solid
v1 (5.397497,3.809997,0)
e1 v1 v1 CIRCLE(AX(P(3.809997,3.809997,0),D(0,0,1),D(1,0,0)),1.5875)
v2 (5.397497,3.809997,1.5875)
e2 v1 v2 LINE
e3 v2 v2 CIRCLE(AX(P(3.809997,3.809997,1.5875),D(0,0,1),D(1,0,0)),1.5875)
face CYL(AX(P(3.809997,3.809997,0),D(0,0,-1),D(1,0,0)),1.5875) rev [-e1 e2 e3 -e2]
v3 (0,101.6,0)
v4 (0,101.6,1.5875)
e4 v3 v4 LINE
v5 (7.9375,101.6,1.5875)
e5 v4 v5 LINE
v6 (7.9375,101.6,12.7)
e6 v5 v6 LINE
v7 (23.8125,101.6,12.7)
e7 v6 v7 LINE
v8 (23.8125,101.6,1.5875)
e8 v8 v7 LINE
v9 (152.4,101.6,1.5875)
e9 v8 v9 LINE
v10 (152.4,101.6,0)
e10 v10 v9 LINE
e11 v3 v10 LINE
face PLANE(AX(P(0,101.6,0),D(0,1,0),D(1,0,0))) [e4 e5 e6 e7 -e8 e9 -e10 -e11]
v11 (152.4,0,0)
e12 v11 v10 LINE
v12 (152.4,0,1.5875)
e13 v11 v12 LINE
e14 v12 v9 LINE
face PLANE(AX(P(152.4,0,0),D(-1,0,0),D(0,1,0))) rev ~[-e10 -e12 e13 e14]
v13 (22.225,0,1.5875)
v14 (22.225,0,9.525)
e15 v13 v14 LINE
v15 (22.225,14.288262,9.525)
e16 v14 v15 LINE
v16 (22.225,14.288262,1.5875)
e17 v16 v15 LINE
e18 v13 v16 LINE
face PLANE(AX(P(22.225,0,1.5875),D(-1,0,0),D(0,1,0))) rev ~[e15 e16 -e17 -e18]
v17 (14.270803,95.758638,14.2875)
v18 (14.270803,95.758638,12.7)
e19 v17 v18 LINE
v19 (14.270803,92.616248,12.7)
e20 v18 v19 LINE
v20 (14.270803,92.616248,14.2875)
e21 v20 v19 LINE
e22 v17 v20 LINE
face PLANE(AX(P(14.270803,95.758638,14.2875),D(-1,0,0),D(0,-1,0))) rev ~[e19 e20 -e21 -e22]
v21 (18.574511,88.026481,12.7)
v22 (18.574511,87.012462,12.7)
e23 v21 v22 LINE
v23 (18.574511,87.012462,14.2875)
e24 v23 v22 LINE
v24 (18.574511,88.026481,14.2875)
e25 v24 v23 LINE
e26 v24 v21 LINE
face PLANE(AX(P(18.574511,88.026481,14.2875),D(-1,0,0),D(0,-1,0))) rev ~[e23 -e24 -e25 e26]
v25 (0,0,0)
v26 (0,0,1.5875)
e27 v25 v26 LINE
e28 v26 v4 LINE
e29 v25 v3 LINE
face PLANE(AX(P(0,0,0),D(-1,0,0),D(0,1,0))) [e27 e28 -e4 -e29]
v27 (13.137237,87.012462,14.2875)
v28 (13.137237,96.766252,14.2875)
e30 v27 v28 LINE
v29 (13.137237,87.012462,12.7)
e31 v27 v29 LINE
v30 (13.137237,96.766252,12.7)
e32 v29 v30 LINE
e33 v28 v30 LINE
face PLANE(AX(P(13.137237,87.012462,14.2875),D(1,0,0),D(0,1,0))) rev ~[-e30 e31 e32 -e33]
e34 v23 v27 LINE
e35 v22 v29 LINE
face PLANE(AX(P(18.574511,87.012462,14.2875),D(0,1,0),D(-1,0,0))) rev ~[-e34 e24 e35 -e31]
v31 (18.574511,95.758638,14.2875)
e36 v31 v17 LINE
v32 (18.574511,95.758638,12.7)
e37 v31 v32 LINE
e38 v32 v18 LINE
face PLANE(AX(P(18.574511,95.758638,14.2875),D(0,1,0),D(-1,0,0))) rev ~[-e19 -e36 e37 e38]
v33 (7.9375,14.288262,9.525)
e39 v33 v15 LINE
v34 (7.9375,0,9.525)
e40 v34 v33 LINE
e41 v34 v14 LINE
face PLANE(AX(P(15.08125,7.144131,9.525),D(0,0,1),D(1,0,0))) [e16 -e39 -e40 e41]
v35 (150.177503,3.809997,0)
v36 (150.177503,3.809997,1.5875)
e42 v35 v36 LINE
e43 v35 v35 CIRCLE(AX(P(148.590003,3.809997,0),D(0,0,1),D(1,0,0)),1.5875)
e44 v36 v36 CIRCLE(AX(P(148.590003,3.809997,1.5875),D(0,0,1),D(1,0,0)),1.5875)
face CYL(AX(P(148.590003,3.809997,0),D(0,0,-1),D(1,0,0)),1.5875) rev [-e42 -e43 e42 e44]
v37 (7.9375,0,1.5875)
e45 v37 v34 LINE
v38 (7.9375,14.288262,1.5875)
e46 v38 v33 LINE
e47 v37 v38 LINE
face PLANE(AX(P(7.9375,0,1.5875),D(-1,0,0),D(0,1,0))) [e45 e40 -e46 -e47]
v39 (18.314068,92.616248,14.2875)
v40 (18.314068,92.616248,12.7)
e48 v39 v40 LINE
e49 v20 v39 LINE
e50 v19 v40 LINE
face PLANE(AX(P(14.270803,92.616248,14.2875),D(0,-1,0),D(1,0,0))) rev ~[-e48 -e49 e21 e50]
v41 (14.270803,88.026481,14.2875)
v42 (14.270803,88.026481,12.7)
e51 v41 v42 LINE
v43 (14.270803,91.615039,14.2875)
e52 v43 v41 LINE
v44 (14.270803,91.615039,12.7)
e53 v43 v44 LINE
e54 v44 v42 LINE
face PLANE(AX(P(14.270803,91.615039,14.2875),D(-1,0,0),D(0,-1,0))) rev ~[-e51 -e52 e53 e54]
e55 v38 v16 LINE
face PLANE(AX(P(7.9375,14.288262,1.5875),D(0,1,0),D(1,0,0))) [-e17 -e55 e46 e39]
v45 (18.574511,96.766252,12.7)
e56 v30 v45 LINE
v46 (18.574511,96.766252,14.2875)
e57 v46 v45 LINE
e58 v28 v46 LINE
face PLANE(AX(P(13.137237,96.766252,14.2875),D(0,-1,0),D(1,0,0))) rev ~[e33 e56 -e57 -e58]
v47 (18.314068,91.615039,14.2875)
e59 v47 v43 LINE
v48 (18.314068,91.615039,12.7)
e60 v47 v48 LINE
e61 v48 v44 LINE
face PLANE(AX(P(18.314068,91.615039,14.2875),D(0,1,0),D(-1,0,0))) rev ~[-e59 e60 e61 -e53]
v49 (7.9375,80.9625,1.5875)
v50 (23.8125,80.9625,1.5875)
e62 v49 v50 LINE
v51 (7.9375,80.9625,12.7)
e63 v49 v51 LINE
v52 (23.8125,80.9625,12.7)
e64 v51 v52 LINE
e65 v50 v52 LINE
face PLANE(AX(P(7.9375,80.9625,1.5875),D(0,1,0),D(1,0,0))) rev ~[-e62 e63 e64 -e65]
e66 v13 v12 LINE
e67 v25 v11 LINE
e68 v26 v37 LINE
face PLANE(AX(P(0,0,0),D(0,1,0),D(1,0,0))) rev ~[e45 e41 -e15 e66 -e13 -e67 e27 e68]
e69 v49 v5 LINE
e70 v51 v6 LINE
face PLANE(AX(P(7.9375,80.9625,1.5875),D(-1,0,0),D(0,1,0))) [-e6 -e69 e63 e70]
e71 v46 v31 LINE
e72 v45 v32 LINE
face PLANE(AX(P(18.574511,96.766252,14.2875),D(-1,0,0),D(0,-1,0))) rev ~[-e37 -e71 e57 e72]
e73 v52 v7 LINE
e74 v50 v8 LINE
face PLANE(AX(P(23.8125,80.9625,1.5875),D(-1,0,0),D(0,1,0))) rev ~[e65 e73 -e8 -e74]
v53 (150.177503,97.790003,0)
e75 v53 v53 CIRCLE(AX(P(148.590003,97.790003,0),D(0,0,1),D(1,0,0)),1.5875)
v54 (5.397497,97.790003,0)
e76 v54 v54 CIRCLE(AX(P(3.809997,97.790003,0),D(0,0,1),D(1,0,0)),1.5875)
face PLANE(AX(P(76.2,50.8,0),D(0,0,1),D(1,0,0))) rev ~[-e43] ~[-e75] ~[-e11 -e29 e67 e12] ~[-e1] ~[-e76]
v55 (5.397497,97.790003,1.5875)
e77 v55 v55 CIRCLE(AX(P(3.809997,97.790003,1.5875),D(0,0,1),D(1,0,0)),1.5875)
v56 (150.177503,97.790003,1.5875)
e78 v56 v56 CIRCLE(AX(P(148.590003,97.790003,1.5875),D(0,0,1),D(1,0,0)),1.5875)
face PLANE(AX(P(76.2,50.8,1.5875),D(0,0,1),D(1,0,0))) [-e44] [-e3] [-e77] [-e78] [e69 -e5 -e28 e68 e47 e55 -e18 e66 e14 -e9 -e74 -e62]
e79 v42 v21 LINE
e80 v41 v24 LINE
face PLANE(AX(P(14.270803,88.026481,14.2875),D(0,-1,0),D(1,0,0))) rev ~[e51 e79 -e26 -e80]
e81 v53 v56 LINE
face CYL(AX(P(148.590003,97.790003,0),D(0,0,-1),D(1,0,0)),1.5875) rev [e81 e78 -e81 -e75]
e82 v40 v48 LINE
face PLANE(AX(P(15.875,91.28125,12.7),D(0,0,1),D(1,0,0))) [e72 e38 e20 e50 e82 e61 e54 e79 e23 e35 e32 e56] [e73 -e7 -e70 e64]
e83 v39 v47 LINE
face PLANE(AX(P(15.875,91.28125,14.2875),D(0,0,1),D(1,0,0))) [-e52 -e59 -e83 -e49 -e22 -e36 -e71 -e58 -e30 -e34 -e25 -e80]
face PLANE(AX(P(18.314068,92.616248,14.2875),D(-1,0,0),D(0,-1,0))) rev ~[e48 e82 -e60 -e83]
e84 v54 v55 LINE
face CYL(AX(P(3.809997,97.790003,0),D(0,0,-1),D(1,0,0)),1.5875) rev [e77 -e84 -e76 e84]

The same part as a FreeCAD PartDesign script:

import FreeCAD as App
import Part
import Sketcher
from FreeCAD import Vector
Q = App.Units.Quantity

doc = App.newDocument("Part")
body = doc.addObject("PartDesign::Body", "Body")

sketch1 = doc.addObject("Sketcher::SketchObject", "Sketch")
body.addObject(sketch1)
sketch1.AttachmentSupport = (doc.XY_Plane, [""])
sketch1.MapMode = "FlatFace"
sketch1.addGeometry([
    Part.LineSegment(Vector(0, 101.6, 0), Vector(0, 0, 0)),
    Part.LineSegment(Vector(0, 0, 0), Vector(152.4, 0, 0)),
    Part.LineSegment(Vector(152.4, 0, 0), Vector(152.4, 101.6, 0)),
    Part.LineSegment(Vector(152.4, 101.6, 0), Vector(0, 101.6, 0)),
    Part.Circle(Vector(3.8, 3.8, 0), Vector(0, 0, 1), 1.6),
    Part.Circle(Vector(148.6, 3.8, 0), Vector(0, 0, 1), 1.6),
    Part.Circle(Vector(3.8, 97.8, 0), Vector(0, 0, 1), 1.6),
    Part.Circle(Vector(148.6, 97.8, 0), Vector(0, 0, 1), 1.6),
], False)
sketch1.addConstraint([
    Sketcher.Constraint("Coincident", 0, 2, 1, 1),
    Sketcher.Constraint("Coincident", 1, 2, 2, 1),
    Sketcher.Constraint("Coincident", 2, 2, 3, 1),
    Sketcher.Constraint("Coincident", 3, 2, 0, 1),
    Sketcher.Constraint("Vertical", 0),
    Sketcher.Constraint("Horizontal", 1),
    Sketcher.Constraint("Vertical", 2),
    Sketcher.Constraint("Horizontal", 3),
    Sketcher.Constraint("Coincident", 0, 2, -1, 1),
    Sketcher.Constraint("Equal", 4, 5),
    Sketcher.Constraint("Equal", 5, 6),
    Sketcher.Constraint("Equal", 6, 7),
    Sketcher.Constraint("Horizontal", 4, 3, 5, 3),
    Sketcher.Constraint("Horizontal", 6, 3, 7, 3),
    Sketcher.Constraint("Vertical", 4, 3, 6, 3),
    Sketcher.Constraint("Vertical", 5, 3, 7, 3),
    Sketcher.Constraint("DistanceX", 1, 1, 1, 2, Q("6 in")),
    Sketcher.Constraint("DistanceY", 0, 2, 0, 1, Q("4 in")),
    Sketcher.Constraint("Diameter", 4, Q("0.125 in")),
    Sketcher.Constraint("DistanceX", -1, 1, 4, 3, Q("0.1499999 in")),
    Sketcher.Constraint("DistanceY", -1, 1, 4, 3, Q("0.1499999 in")),
    Sketcher.Constraint("DistanceX", -1, 1, 5, 3, Q("5.8500001 in")),
    Sketcher.Constraint("DistanceY", -1, 1, 6, 3, Q("3.8500001 in")),
])
pad1 = doc.addObject("PartDesign::Pad", "Pad")
body.addObject(pad1)
pad1.Profile = sketch1
pad1.Length = Q("0.0625 in")

sketch2 = doc.addObject("Sketcher::SketchObject", "Sketch001")
body.addObject(sketch2)
sketch2.AttachmentSupport = (doc.XY_Plane, [""])
sketch2.MapMode = "FlatFace"
sketch2.AttachmentOffset = App.Placement(Vector(0, 0, 0.0625 * 25.4), App.Rotation())
sketch2.addGeometry([
    Part.LineSegment(Vector(8, 102, 0), Vector(8, 81, 0)),
    Part.LineSegment(Vector(8, 81, 0), Vector(24, 81, 0)),
    Part.LineSegment(Vector(24, 81, 0), Vector(24, 102, 0)),
    Part.LineSegment(Vector(24, 102, 0), Vector(8, 102, 0)),
], False)
sketch2.addConstraint([
    Sketcher.Constraint("Coincident", 0, 2, 1, 1),
    Sketcher.Constraint("Coincident", 1, 2, 2, 1),
    Sketcher.Constraint("Coincident", 2, 2, 3, 1),
    Sketcher.Constraint("Coincident", 3, 2, 0, 1),
    Sketcher.Constraint("Vertical", 0),
    Sketcher.Constraint("Horizontal", 1),
    Sketcher.Constraint("Vertical", 2),
    Sketcher.Constraint("Horizontal", 3),
    Sketcher.Constraint("DistanceY", -1, 1, 2, 2, Q("4 in")),
    Sketcher.Constraint("DistanceX", 1, 1, 1, 2, Q("0.625 in")),
    Sketcher.Constraint("DistanceY", 0, 2, 0, 1, Q("0.8125 in")),
    Sketcher.Constraint("DistanceX", -1, 1, 0, 2, Q("0.3125 in")),
])
pad2 = doc.addObject("PartDesign::Pad", "Pad001")
body.addObject(pad2)
pad2.Profile = sketch2
pad2.Length = Q("0.5 in")

sketch3 = doc.addObject("Sketcher::SketchObject", "Sketch002")
body.addObject(sketch3)
sketch3.AttachmentSupport = (doc.XY_Plane, [""])
sketch3.MapMode = "FlatFace"
sketch3.AttachmentOffset = App.Placement(Vector(0, 0, 0.0625 * 25.4), App.Rotation())
sketch3.addGeometry([
    Part.LineSegment(Vector(8, 14, 0), Vector(8, 0, 0)),
    Part.LineSegment(Vector(8, 0, 0), Vector(22, 0, 0)),
    Part.LineSegment(Vector(22, 0, 0), Vector(22, 14, 0)),
    Part.LineSegment(Vector(22, 14, 0), Vector(8, 14, 0)),
], False)
sketch3.addConstraint([
    Sketcher.Constraint("Coincident", 0, 2, 1, 1),
    Sketcher.Constraint("Coincident", 1, 2, 2, 1),
    Sketcher.Constraint("Coincident", 2, 2, 3, 1),
    Sketcher.Constraint("Coincident", 3, 2, 0, 1),
    Sketcher.Constraint("Vertical", 0),
    Sketcher.Constraint("Horizontal", 1),
    Sketcher.Constraint("Vertical", 2),
    Sketcher.Constraint("Horizontal", 3),
    Sketcher.Constraint("PointOnObject", 0, 2, -1),
    Sketcher.Constraint("DistanceX", 1, 1, 1, 2, Q("0.5625 in")),
    Sketcher.Constraint("DistanceX", -1, 1, 0, 2, Q("0.3125 in")),
    Sketcher.Constraint("DistanceY", 0, 2, 0, 1, 14.288262),
])
pad3 = doc.addObject("PartDesign::Pad", "Pad002")
body.addObject(pad3)
pad3.Profile = sketch3
pad3.Length = Q("0.3125 in")

sketch4 = doc.addObject("Sketcher::SketchObject", "Sketch003")
body.addObject(sketch4)
sketch4.AttachmentSupport = (doc.XY_Plane, [""])
sketch4.MapMode = "FlatFace"
sketch4.AttachmentOffset = App.Placement(Vector(0, 0, 0.5625 * 25.4), App.Rotation())
sketch4.addGeometry([
    Part.LineSegment(Vector(7.9, 101.6, 0), Vector(7.9, 81, 0)),
    Part.LineSegment(Vector(7.9, 81, 0), Vector(23.8, 81, 0)),
    Part.LineSegment(Vector(23.8, 81, 0), Vector(23.8, 101.6, 0)),
    Part.LineSegment(Vector(23.8, 101.6, 0), Vector(7.9, 101.6, 0)),
    Part.LineSegment(Vector(14.3, 88, 0), Vector(18.6, 88, 0)),
    Part.LineSegment(Vector(18.6, 88, 0), Vector(18.6, 87, 0)),
    Part.LineSegment(Vector(18.6, 87, 0), Vector(13.1, 87, 0)),
    Part.LineSegment(Vector(13.1, 87, 0), Vector(13.1, 96.8, 0)),
    Part.LineSegment(Vector(13.1, 96.8, 0), Vector(18.6, 96.8, 0)),
    Part.LineSegment(Vector(18.6, 96.8, 0), Vector(18.6, 95.8, 0)),
    Part.LineSegment(Vector(18.6, 95.8, 0), Vector(14.3, 95.8, 0)),
    Part.LineSegment(Vector(14.3, 95.8, 0), Vector(14.3, 92.6, 0)),
    Part.LineSegment(Vector(14.3, 92.6, 0), Vector(18.3, 92.6, 0)),
    Part.LineSegment(Vector(18.3, 92.6, 0), Vector(18.3, 91.6, 0)),
    Part.LineSegment(Vector(18.3, 91.6, 0), Vector(14.3, 91.6, 0)),
    Part.LineSegment(Vector(14.3, 91.6, 0), Vector(14.3, 88, 0)),
], False)
sketch4.addConstraint([
    Sketcher.Constraint("Coincident", 0, 2, 1, 1),
    Sketcher.Constraint("Coincident", 1, 2, 2, 1),
    Sketcher.Constraint("Coincident", 2, 2, 3, 1),
    Sketcher.Constraint("Coincident", 3, 2, 0, 1),
    Sketcher.Constraint("Coincident", 4, 2, 5, 1),
    Sketcher.Constraint("Coincident", 5, 2, 6, 1),
    Sketcher.Constraint("Coincident", 6, 2, 7, 1),
    Sketcher.Constraint("Coincident", 7, 2, 8, 1),
    Sketcher.Constraint("Coincident", 8, 2, 9, 1),
    Sketcher.Constraint("Coincident", 9, 2, 10, 1),
    Sketcher.Constraint("Coincident", 10, 2, 11, 1),
    Sketcher.Constraint("Coincident", 11, 2, 12, 1),
    Sketcher.Constraint("Coincident", 12, 2, 13, 1),
    Sketcher.Constraint("Coincident", 13, 2, 14, 1),
    Sketcher.Constraint("Coincident", 14, 2, 15, 1),
    Sketcher.Constraint("Coincident", 15, 2, 4, 1),
    Sketcher.Constraint("Vertical", 0),
    Sketcher.Constraint("Horizontal", 1),
    Sketcher.Constraint("Vertical", 2),
    Sketcher.Constraint("Horizontal", 3),
    Sketcher.Constraint("Horizontal", 4),
    Sketcher.Constraint("Vertical", 5),
    Sketcher.Constraint("Horizontal", 6),
    Sketcher.Constraint("Vertical", 7),
    Sketcher.Constraint("Horizontal", 8),
    Sketcher.Constraint("Vertical", 9),
    Sketcher.Constraint("Horizontal", 10),
    Sketcher.Constraint("Vertical", 11),
    Sketcher.Constraint("Horizontal", 12),
    Sketcher.Constraint("Vertical", 13),
    Sketcher.Constraint("Horizontal", 14),
    Sketcher.Constraint("Vertical", 15),
    Sketcher.Constraint("Vertical", 5, 2, 8, 2),
    Sketcher.Constraint("Vertical", 11, 2, 14, 2),
    Sketcher.Constraint("DistanceY", -1, 1, 2, 2, Q("4 in")),
    Sketcher.Constraint("DistanceX", 1, 1, 1, 2, Q("0.625 in")),
    Sketcher.Constraint("DistanceY", 0, 2, 0, 1, Q("0.8125 in")),
    Sketcher.Constraint("DistanceX", -1, 1, 0, 2, Q("0.3125 in")),
    Sketcher.Constraint("DistanceY", 5, 2, 5, 1, 1.014018),
    Sketcher.Constraint("DistanceY", 7, 1, 7, 2, 9.75379),
    Sketcher.Constraint("DistanceY", 11, 2, 11, 1, 3.14239),
    Sketcher.Constraint("DistanceY", 13, 2, 13, 1, 1.00121),
    Sketcher.Constraint("DistanceX", 4, 1, 4, 2, 4.303708),
    Sketcher.Constraint("DistanceX", 6, 2, 6, 1, 5.437274),
    Sketcher.Constraint("DistanceX", 12, 1, 12, 2, 4.043265),
    Sketcher.Constraint("DistanceY", 9, 2, 9, 1, 1.007614),
    Sketcher.Constraint("DistanceX", -1, 1, 4, 2, 18.574511),
    Sketcher.Constraint("DistanceY", -1, 1, 4, 2, 88.026481),
])
pocket1 = doc.addObject("PartDesign::Pocket", "Pocket")
body.addObject(pocket1)
pocket1.Profile = sketch4
pocket1.Length = Q("0.0625 in")

doc.recompute()
